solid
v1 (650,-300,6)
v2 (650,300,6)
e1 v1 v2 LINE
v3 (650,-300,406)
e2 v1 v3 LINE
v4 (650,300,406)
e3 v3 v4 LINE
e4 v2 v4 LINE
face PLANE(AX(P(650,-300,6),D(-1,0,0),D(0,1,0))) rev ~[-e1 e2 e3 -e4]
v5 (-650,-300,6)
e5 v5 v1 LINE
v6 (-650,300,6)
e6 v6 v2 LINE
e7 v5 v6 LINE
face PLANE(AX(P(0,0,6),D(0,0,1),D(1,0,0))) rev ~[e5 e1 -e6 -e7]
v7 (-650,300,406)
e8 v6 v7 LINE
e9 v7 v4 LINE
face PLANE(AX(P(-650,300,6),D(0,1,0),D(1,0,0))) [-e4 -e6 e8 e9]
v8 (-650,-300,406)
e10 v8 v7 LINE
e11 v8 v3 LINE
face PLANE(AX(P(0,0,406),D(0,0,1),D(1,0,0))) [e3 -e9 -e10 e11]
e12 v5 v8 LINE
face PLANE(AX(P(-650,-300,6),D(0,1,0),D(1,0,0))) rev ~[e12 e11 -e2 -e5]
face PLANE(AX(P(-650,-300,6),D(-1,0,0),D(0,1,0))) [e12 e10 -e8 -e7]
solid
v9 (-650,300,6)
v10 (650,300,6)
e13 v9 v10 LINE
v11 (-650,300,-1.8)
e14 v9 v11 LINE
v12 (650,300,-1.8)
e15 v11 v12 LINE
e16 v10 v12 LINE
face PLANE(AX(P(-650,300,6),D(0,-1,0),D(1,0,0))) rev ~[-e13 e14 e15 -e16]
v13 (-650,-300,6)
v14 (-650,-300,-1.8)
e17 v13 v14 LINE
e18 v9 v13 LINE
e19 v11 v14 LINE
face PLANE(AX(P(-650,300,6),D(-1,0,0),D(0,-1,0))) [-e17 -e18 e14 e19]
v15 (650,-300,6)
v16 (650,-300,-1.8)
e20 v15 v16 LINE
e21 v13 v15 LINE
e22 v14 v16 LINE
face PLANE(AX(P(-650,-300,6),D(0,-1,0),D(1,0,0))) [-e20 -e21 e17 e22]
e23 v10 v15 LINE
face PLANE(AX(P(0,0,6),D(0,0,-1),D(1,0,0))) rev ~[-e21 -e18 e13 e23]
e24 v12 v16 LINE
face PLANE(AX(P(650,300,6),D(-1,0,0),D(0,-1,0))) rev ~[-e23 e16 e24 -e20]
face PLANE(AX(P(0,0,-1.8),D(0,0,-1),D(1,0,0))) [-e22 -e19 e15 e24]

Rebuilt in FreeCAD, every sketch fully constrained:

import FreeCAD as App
import Part
import Sketcher
Q = App.Units.Quantity


def add_polygon(sketch, points):
    """Adds a closed chain of lines whose ends are joined by coincident constraints."""
    first, n = sketch.GeometryCount, len(points)
    for a, b in zip(points, points[1:] + points[:1]):
        sketch.addGeometry(Part.LineSegment(App.Vector(*a, 0), App.Vector(*b, 0)), False)
    for i in range(n):
        sketch.addConstraint(Sketcher.Constraint("Coincident", first + i, 2, first + (i + 1) % n, 1))

doc = App.newDocument("Part")
body = doc.addObject("PartDesign::Body", "Body")

# Sketch on XY plane
sketch1 = doc.addObject("Sketcher::SketchObject", "Sketch")
body.addObject(sketch1)
sketch1.AttachmentSupport = (doc.XY_Plane, [""])
sketch1.MapMode = "FlatFace"
sketch1.AttachmentOffset = App.Placement(App.Vector(0, 0, 6), App.Rotation())
add_polygon(sketch1, [(-650, 300), (-650, -300), (650, -300), (650, 300)])  # lines 0-3
sketch1.addConstraint([
    Sketcher.Constraint("Vertical", 0),
    Sketcher.Constraint("Horizontal", 1),
    Sketcher.Constraint("Vertical", 2),
    Sketcher.Constraint("Horizontal", 3),
    Sketcher.Constraint("Symmetric", 0, 2, 2, 2, -1, 1),
    Sketcher.Constraint("DistanceX", 1, 1, 1, 2, Q("1300 mm")),
    Sketcher.Constraint("DistanceY", 0, 2, 0, 1, Q("600 mm")),
])
pad1 = doc.addObject("PartDesign::Pad", "Pad")
body.addObject(pad1)
pad1.Profile = sketch1
pad1.Length = 400
body2 = doc.addObject("PartDesign::Body", "Body001")

# Sketch on XY plane
sketch2 = doc.addObject("Sketcher::SketchObject", "Sketch001")
body2.addObject(sketch2)
sketch2.AttachmentSupport = (doc.getObject("XY_Plane001"), [""])
sketch2.MapMode = "FlatFace"
sketch2.AttachmentOffset = App.Placement(App.Vector(0, 0, 6), App.Rotation())
add_polygon(sketch2, [(-650, -300), (-650, 300), (650, 300), (650, -300)])  # lines 0-3
sketch2.addConstraint([
    Sketcher.Constraint("Vertical", 0),
    Sketcher.Constraint("Horizontal", 1),
    Sketcher.Constraint("Vertical", 2),
    Sketcher.Constraint("Horizontal", 3),
    Sketcher.Constraint("Symmetric", 0, 2, 2, 2, -1, 1),
    Sketcher.Constraint("DistanceX", 1, 1, 1, 2, Q("1300 mm")),
    Sketcher.Constraint("DistanceY", 0, 1, 0, 2, Q("600 mm")),
])
pad2 = doc.addObject("PartDesign::Pad", "Pad001")
body2.addObject(pad2)
pad2.Profile = sketch2
pad2.Length = 7.8
pad2.Reversed = True

doc.recompute()
